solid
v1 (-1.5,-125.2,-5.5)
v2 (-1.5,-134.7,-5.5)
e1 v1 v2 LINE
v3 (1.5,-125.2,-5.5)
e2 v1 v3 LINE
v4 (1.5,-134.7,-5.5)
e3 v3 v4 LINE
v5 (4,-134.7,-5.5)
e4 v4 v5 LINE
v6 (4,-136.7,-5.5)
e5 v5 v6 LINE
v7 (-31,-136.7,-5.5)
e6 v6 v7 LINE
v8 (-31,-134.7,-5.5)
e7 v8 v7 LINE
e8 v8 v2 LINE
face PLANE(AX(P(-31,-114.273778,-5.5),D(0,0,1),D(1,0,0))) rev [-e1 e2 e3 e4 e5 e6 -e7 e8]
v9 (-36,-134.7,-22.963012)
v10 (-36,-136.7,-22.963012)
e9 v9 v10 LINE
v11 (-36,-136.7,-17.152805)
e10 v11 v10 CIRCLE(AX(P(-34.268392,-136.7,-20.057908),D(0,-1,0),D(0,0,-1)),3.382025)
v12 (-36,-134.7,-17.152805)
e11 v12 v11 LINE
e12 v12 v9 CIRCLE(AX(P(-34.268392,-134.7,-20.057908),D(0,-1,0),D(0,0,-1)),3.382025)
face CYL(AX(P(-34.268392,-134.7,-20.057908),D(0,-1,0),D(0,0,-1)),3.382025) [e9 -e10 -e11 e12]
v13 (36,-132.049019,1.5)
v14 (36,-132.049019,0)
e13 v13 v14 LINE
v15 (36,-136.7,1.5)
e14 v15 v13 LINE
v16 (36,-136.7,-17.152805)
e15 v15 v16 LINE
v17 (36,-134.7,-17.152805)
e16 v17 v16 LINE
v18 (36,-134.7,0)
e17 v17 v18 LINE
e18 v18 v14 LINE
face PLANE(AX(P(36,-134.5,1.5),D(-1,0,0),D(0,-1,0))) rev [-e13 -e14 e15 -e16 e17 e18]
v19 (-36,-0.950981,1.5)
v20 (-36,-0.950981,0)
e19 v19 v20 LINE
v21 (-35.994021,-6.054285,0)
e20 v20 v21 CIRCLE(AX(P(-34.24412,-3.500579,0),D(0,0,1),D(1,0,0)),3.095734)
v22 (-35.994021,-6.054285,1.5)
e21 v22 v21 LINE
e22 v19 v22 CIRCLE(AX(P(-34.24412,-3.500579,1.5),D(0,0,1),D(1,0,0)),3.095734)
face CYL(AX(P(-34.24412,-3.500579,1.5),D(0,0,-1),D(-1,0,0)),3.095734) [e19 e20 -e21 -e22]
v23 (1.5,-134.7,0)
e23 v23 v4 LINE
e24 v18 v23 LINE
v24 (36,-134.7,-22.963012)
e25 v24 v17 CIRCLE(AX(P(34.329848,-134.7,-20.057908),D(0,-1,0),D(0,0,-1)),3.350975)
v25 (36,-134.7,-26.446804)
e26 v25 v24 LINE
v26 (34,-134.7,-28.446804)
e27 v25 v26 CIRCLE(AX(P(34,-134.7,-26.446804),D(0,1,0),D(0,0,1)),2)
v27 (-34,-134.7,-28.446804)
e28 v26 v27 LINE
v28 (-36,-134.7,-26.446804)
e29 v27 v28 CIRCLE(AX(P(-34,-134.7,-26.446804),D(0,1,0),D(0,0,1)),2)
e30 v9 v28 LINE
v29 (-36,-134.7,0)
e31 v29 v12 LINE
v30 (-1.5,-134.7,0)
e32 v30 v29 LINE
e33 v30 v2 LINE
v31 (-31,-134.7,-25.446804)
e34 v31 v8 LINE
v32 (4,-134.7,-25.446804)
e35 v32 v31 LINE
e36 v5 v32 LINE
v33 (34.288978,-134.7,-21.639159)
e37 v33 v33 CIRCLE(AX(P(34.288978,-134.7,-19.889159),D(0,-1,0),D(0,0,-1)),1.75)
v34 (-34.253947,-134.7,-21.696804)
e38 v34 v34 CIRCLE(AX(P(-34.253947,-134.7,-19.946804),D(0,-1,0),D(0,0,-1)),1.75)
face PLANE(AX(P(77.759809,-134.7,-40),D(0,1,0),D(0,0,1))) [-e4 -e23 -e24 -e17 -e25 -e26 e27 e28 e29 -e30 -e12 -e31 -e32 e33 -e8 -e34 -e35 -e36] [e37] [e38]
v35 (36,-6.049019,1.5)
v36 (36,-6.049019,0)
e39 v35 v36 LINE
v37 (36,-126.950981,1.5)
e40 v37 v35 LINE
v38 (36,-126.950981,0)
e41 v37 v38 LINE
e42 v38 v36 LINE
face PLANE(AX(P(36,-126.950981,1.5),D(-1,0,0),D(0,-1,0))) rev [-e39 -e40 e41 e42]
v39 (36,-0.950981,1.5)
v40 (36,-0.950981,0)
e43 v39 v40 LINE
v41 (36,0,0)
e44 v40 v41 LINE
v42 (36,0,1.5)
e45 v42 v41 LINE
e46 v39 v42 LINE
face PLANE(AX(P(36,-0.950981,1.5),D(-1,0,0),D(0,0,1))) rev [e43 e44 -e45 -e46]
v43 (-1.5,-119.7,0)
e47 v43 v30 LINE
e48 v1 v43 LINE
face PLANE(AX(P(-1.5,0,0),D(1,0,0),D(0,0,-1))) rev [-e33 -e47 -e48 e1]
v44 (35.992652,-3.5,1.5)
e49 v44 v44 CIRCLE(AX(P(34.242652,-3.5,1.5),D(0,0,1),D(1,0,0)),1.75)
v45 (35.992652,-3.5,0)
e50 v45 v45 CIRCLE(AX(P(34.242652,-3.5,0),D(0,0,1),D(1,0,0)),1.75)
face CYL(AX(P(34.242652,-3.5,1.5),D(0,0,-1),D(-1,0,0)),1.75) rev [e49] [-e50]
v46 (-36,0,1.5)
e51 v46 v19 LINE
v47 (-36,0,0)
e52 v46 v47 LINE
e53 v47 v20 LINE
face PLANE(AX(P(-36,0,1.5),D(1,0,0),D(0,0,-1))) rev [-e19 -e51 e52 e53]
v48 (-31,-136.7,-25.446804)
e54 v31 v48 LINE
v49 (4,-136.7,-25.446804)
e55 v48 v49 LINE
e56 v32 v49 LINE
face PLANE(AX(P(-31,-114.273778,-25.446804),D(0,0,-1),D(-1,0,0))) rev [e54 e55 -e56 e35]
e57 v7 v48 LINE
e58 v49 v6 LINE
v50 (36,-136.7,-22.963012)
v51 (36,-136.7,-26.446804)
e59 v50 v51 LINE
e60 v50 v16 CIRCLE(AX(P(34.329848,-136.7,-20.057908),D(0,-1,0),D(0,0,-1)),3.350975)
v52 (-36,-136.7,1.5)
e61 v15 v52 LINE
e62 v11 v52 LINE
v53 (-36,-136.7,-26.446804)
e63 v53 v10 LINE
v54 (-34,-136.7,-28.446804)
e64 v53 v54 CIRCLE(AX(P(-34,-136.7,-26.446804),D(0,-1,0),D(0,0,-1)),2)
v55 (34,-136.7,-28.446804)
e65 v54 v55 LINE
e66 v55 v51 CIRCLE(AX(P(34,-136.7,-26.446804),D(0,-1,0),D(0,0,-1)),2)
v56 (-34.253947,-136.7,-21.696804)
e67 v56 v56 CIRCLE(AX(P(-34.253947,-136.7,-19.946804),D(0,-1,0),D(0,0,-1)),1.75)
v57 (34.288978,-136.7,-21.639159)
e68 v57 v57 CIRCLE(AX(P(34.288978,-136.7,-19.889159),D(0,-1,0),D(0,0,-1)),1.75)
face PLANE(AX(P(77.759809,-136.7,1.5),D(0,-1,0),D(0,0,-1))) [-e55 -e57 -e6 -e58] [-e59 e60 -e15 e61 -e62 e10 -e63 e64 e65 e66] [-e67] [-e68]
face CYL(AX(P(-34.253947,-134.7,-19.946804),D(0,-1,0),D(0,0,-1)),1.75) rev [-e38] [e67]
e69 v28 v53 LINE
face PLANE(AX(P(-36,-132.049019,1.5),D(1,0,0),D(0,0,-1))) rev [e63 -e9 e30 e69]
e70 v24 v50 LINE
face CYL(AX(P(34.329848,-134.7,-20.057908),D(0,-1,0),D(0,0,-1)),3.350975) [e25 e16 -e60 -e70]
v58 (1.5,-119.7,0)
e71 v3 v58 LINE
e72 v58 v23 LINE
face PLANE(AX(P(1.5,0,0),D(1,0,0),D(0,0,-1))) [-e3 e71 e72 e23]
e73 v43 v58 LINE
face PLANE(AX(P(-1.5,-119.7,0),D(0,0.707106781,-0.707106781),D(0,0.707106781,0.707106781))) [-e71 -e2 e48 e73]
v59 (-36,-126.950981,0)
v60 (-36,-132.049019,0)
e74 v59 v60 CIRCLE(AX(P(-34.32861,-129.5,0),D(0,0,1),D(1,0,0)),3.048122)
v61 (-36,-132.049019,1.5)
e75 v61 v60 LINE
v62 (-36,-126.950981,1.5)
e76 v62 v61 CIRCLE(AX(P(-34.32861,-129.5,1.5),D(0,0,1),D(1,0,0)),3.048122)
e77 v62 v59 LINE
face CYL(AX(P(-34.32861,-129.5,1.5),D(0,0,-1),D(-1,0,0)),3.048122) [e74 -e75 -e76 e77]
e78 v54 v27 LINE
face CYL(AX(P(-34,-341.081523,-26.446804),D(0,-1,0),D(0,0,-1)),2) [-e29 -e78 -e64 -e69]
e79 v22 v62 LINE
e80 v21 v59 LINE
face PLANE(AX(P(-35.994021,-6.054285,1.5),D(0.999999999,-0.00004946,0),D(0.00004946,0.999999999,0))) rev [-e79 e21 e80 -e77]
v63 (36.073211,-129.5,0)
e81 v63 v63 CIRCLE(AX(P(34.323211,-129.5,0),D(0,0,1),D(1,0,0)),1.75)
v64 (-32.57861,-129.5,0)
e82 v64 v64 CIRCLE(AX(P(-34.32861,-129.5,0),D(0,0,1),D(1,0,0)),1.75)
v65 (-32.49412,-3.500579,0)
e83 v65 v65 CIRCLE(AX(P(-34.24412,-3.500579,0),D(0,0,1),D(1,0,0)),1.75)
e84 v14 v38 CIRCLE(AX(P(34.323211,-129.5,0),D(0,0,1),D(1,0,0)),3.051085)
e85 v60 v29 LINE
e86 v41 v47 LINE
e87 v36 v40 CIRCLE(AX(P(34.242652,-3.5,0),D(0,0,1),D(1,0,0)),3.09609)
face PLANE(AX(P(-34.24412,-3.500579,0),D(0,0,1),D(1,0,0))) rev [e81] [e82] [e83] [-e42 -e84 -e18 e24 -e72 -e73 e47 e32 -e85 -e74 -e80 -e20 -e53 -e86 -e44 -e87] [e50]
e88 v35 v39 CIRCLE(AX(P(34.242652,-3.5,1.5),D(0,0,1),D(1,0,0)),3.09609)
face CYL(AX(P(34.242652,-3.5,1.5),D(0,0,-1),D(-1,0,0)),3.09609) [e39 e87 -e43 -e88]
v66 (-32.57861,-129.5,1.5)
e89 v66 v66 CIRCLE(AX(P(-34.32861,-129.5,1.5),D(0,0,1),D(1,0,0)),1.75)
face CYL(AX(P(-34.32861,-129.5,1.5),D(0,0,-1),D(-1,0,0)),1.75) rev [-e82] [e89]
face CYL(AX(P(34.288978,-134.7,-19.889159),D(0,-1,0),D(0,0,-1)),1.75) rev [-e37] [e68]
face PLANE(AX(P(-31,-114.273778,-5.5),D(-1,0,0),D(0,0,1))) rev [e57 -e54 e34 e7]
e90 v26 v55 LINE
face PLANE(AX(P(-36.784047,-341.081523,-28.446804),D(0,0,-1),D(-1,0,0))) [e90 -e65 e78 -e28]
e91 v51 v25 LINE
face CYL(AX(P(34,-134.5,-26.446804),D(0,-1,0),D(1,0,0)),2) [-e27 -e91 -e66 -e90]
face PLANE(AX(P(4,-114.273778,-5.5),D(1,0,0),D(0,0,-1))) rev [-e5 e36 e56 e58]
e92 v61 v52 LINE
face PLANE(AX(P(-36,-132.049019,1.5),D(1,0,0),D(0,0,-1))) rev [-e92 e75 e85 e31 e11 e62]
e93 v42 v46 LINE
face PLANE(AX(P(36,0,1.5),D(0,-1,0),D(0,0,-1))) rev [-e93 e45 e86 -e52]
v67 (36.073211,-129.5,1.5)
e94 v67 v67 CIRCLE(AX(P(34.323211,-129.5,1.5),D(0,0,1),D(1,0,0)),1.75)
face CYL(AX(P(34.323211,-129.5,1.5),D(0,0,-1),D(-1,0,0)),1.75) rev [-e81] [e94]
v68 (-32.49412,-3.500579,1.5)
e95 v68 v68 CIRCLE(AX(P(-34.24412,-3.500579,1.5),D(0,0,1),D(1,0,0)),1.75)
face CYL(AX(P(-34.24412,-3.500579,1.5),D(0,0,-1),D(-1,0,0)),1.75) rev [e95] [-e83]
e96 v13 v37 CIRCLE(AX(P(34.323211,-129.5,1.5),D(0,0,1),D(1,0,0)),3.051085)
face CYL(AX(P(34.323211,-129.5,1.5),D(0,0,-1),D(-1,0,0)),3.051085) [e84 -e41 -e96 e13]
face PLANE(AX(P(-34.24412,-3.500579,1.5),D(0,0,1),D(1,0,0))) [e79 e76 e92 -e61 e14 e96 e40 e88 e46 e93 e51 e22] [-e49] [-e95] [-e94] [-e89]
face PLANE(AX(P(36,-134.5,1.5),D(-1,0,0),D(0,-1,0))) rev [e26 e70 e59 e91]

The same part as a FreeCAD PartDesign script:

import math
import FreeCAD as App
import Part
import Sketcher

V = App.Vector
Q = App.Units.Quantity


def edges_at(feature, points):
    """Names of the edges that pass closest to the given points."""
    edges = feature.Shape.Edges
    near = lambda p: min(range(len(edges)), key=lambda i: edges[i].distToShape(Part.Vertex(*p))[0])
    return sorted({f"Edge{near(p) + 1}" for p in points})

doc = App.newDocument("Part")
body = doc.addObject("PartDesign::Body", "Body")

# Sketch on XY plane
sketch1 = body.newObject("Sketcher::SketchObject", "Sketch")
sketch1.AttachmentSupport = (doc.getObject("XY_Plane"), [""])
sketch1.MapMode = "FlatFace"
sketch1.addGeometry([
    Part.LineSegment(V(36, -134.5, 0), V(36, -132, 0)),  # 0
    Part.ArcOfCircle(Part.Circle(V(34.3, -129.5, 0), V(0, 0, 1), 3.1), math.radians(-57), math.radians(57)),  # 1
    Part.LineSegment(V(36, -127, 0), V(36, -6, 0)),  # 2
    Part.ArcOfCircle(Part.Circle(V(34.2, -3.5, 0), V(0, 0, 1), 3.1), math.radians(-55), math.radians(55)),  # 3
    Part.LineSegment(V(36, -1, 0), V(36, 0, 0)),  # 4
    Part.LineSegment(V(36, 0, 0), V(-36, 0, 0)),  # 5
    Part.LineSegment(V(-36, 0, 0), V(-36, -1, 0)),  # 6
    Part.ArcOfCircle(Part.Circle(V(-34.2, -3.5, 0), V(0, 0, 1), 3.1), math.radians(125), math.radians(236)),  # 7
    Part.LineSegment(V(-36, -6.1, 0), V(-36, -127, 0)),  # 8
    Part.ArcOfCircle(Part.Circle(V(-34.3, -129.5, 0), V(0, 0, 1), 3), math.radians(123), math.radians(237)),  # 9
    Part.LineSegment(V(-36, -132, 0), V(-36, -134.5, 0)),  # 10
    Part.LineSegment(V(-36, -134.5, 0), V(36, -134.5, 0)),  # 11
    Part.Circle(V(-34.3, -129.5, 0), V(0, 0, 1), 1.8),  # 12
    Part.Circle(V(34.3, -129.5, 0), V(0, 0, 1), 1.8),  # 13
    Part.Circle(V(-34.2, -3.5, 0), V(0, 0, 1), 1.8),  # 14
    Part.Circle(V(34.2, -3.5, 0), V(0, 0, 1), 1.8),  # 15
], False)
sketch1.addConstraint([
    Sketcher.Constraint("Coincident", 0, 2, 1, 1),
    Sketcher.Constraint("Coincident", 1, 2, 2, 1),
    Sketcher.Constraint("Coincident", 2, 2, 3, 1),
    Sketcher.Constraint("Coincident", 3, 2, 4, 1),
    Sketcher.Constraint("Coincident", 4, 2, 5, 1),
    Sketcher.Constraint("Coincident", 5, 2, 6, 1),
    Sketcher.Constraint("Coincident", 6, 2, 7, 1),
    Sketcher.Constraint("Coincident", 7, 2, 8, 1),
    Sketcher.Constraint("Coincident", 8, 2, 9, 1),
    Sketcher.Constraint("Coincident", 9, 2, 10, 1),
    Sketcher.Constraint("Coincident", 10, 2, 11, 1),
    Sketcher.Constraint("Coincident", 11, 2, 0, 1),
    Sketcher.Constraint("Vertical", 0),
    Sketcher.Constraint("Vertical", 2),
    Sketcher.Constraint("Vertical", 4),
    Sketcher.Constraint("Horizontal", 5),
    Sketcher.Constraint("Vertical", 6),
    Sketcher.Constraint("Vertical", 10),
    Sketcher.Constraint("Horizontal", 11),
    Sketcher.Constraint("Coincident", 12, 3, 9, 3),
    Sketcher.Constraint("Coincident", 13, 3, 1, 3),
    Sketcher.Constraint("Coincident", 14, 3, 7, 3),
    Sketcher.Constraint("Coincident", 15, 3, 3, 3),
    Sketcher.Constraint("Equal", 12, 13),
    Sketcher.Constraint("Equal", 13, 14),
    Sketcher.Constraint("Equal", 14, 15),
    Sketcher.Constraint("Symmetric", 4, 2, 5, 2, -1, 1),
    Sketcher.Constraint("Symmetric", 1, 2, 8, 2, -2),
    Sketcher.Constraint("Symmetric", 0, 2, 9, 2, -2),
    Sketcher.Constraint("Horizontal", 3, 2, 6, 2),
    Sketcher.Constraint("Vertical", 0, 2, 1, 2),
    Sketcher.Constraint("Vertical", 2, 2, 3, 2),
    Sketcher.Constraint("Diameter", 12, Q("3.5 mm")),
    Sketcher.Constraint("DistanceX", 5, 2, 5, 1, Q("72 mm")),
    Sketcher.Constraint("DistanceY", 1, 3, 3, 3, Q("126 mm")),
    Sketcher.Constraint("DistanceY", 10, 2, 9, 3, Q("5 mm")),
    Sketcher.Constraint("DistanceY", 1, 3, -1, 1, Q("129.5 mm")),
    Sketcher.Constraint("Radius", 3, Q("3.09609 mm")),
    Sketcher.Constraint("Radius", 9, Q("3.048122 mm")),
    Sketcher.Constraint("Radius", 1, Q("3.051085 mm")),
    Sketcher.Constraint("Radius", 7, Q("3.095734 mm")),
    Sketcher.Constraint("DistanceY", 0, 1, 0, 2, Q("2.450981 mm")),
    Sketcher.Constraint("DistanceY", 2, 1, 2, 2, Q("120.901961 mm")),
    Sketcher.Constraint("DistanceY", 7, 3, 3, 2, Q("2.549598 mm")),
    Sketcher.Constraint("DistanceX", 7, 2, 7, 3, Q("1.7499 mm")),
])
pad1 = body.newObject("PartDesign::Pad", "Pad")
pad1.Profile = sketch1
pad1.Length = 1.5

# Sketch on YZ plane
sketch2 = body.newObject("Sketcher::SketchObject", "Sketch001")
sketch2.AttachmentSupport = (doc.getObject("YZ_Plane"), [""])
sketch2.MapMode = "FlatFace"
sketch2.AttachmentOffset = App.Placement(V(0, 0, -36), App.Rotation())
sketch2.addGeometry([
    Part.LineSegment(V(-136.7, 1.5, 0), V(-132, 1.5, 0)),  # 0
    Part.LineSegment(V(-132, 1.5, 0), V(-132, 0, 0)),  # 1
    Part.LineSegment(V(-132, 0, 0), V(-134.7, 0, 0)),  # 2
    Part.LineSegment(V(-134.7, 0, 0), V(-134.7, -40, 0)),  # 3
    Part.LineSegment(V(-134.7, -40, 0), V(-136.7, -40, 0)),  # 4
    Part.LineSegment(V(-136.7, -40, 0), V(-136.7, 1.5, 0)),  # 5
], False)
sketch2.addConstraint([
    Sketcher.Constraint("Coincident", 0, 2, 1, 1),
    Sketcher.Constraint("Coincident", 1, 2, 2, 1),
    Sketcher.Constraint("Coincident", 2, 2, 3, 1),
    Sketcher.Constraint("Coincident", 3, 2, 4, 1),
    Sketcher.Constraint("Coincident", 4, 2, 5, 1),
    Sketcher.Constraint("Coincident", 5, 2, 0, 1),
    Sketcher.Constraint("Horizontal", 0),
    Sketcher.Constraint("Vertical", 1),
    Sketcher.Constraint("Horizontal", 2),
    Sketcher.Constraint("Vertical", 3),
    Sketcher.Constraint("Horizontal", 4),
    Sketcher.Constraint("Vertical", 5),
    Sketcher.Constraint("PointOnObject", 1, 2, -1),
    Sketcher.Constraint("DistanceX", 4, 2, 4, 1, Q("2 mm")),
    Sketcher.Constraint("DistanceY", 3, 2, 3, 1, Q("40 mm")),
    Sketcher.Constraint("DistanceY", 1, 2, 1, 1, Q("1.5 mm")),
    Sketcher.Constraint("DistanceX", 2, 2, -1, 1, Q("134.7 mm")),
    Sketcher.Constraint("DistanceX", 0, 1, 0, 2, Q("4.650981 mm")),
])
pad2 = body.newObject("PartDesign::Pad", "Pad001")
pad2.Profile = sketch2
pad2.Length = 72

# Sketch on YZ plane
sketch3 = body.newObject("Sketcher::SketchObject", "Sketch002")
sketch3.AttachmentSupport = (doc.getObject("YZ_Plane"), [""])
sketch3.MapMode = "FlatFace"
sketch3.addGeometry([
    Part.LineSegment(V(-135, -15, 0), V(-120, 0, 0)),
    Part.LineSegment(V(-120, 0, 0), V(-135, 0, 0)),
    Part.LineSegment(V(-135, 0, 0), V(-135, -15, 0)),
], False)
sketch3.addConstraint([
    Sketcher.Constraint("Coincident", 0, 2, 1, 1),
    Sketcher.Constraint("Coincident", 1, 2, 2, 1),
    Sketcher.Constraint("Coincident", 2, 2, 0, 1),
    Sketcher.Constraint("Horizontal", 1),
    Sketcher.Constraint("Vertical", 2),
    Sketcher.Constraint("PointOnObject", 0, 2, -1),
    Sketcher.Constraint("Equal", 1, 2),
    Sketcher.Constraint("DistanceX", 1, 2, 1, 1, Q("15 mm")),
    Sketcher.Constraint("DistanceX", 0, 2, -1, 1, Q("119.7 mm")),
])
pad3 = body.newObject("PartDesign::Pad", "Pad002")
pad3.Profile = sketch3
pad3.Type = "TwoLengths"
pad3.Length = 1.5
pad3.Length2 = 1.5

# Sketch on XZ plane
sketch4 = body.newObject("Sketcher::SketchObject", "Sketch003")
sketch4.AttachmentSupport = (doc.getObject("XZ_Plane"), [""])
sketch4.MapMode = "FlatFace"
sketch4.AttachmentOffset = App.Placement(V(0, 0, 136.7), App.Rotation())
sketch4.addGeometry([
    Part.LineSegment(V(-36, -23, 0), V(-36, -17.2, 0)),
    Part.ArcOfCircle(Part.Circle(V(-34.3, -20.1, 0), V(0, 0, 1), 3.4), math.radians(121), math.radians(239)),
    Part.LineSegment(V(36, -17.2, 0), V(36, -23, 0)),
    Part.ArcOfCircle(Part.Circle(V(34.3, -20.1, 0), V(0, 0, 1), 3.4), math.radians(-60), math.radians(60)),
], False)
sketch4.addConstraint([
    Sketcher.Constraint("Coincident", 0, 1, 1, 2),
    Sketcher.Constraint("Coincident", 1, 1, 0, 2),
    Sketcher.Constraint("Coincident", 2, 1, 3, 2),
    Sketcher.Constraint("Coincident", 3, 1, 2, 2),
    Sketcher.Constraint("Vertical", 0),
    Sketcher.Constraint("Vertical", 2),
    Sketcher.Constraint("Symmetric", 1, 1, 2, 1, -2),
    Sketcher.Constraint("Horizontal", 1, 3, 3, 3),
    Sketcher.Constraint("DistanceX", 0, 1, -1, 1, Q("36 mm")),
    Sketcher.Constraint("Radius", 1, Q("3.382025 mm")),
    Sketcher.Constraint("Radius", 3, Q("3.350975 mm")),
    Sketcher.Constraint("DistanceY", 0, 1, 0, 2, Q("5.810206 mm")),
    Sketcher.Constraint("DistanceY", 1, 3, -1, 1, Q("20.057908 mm")),
])
pad4 = body.newObject("PartDesign::Pad", "Pad003")
pad4.Profile = sketch4
pad4.Length = 2
pad4.Reversed = True

# Sketch on XZ plane
sketch5 = body.newObject("Sketcher::SketchObject", "Sketch004")
sketch5.AttachmentSupport = (doc.getObject("XZ_Plane"), [""])
sketch5.MapMode = "FlatFace"
sketch5.AttachmentOffset = App.Placement(V(0, 0, 136.7), App.Rotation())
sketch5.addGeometry([
    Part.Circle(V(-34.3, -19.9, 0), V(0, 0, 1), 1.8),
    Part.Circle(V(34.3, -19.9, 0), V(0, 0, 1), 1.8),
], False)
sketch5.addConstraint([
    Sketcher.Constraint("Equal", 0, 1),
    Sketcher.Constraint("Diameter", 0, Q("3.5 mm")),
    Sketcher.Constraint("DistanceY", 1, 3, -1, 1, Q("19.889159 mm")),
    Sketcher.Constraint("DistanceX", 0, 3, -1, 1, Q("34.253947 mm")),
    Sketcher.Constraint("DistanceY", 0, 3, -1, 1, Q("19.946804 mm")),
    Sketcher.Constraint("DistanceX", -1, 1, 1, 3, Q("34.288978 mm")),
])
pocket1 = body.newObject("PartDesign::Pocket", "Pocket")
pocket1.Profile = sketch5
pocket1.Length = 2

# Sketch on XZ plane
sketch6 = body.newObject("Sketcher::SketchObject", "Sketch005")
sketch6.AttachmentSupport = (doc.getObject("XZ_Plane"), [""])
sketch6.MapMode = "FlatFace"
sketch6.AttachmentOffset = App.Placement(V(0, 0, 136.7), App.Rotation())
sketch6.addGeometry([
    Part.LineSegment(V(-36, -28, 0), V(-36, -40, 0)),
    Part.LineSegment(V(-36, -40, 0), V(36, -40, 0)),
    Part.LineSegment(V(36, -40, 0), V(36, -28, 0)),
    Part.LineSegment(V(36, -28, 0), V(-36, -28, 0)),
], False)
sketch6.addConstraint([
    Sketcher.Constraint("Coincident", 0, 2, 1, 1),
    Sketcher.Constraint("Coincident", 1, 2, 2, 1),
    Sketcher.Constraint("Coincident", 2, 2, 3, 1),
    Sketcher.Constraint("Coincident", 3, 2, 0, 1),
    Sketcher.Constraint("Vertical", 0),
    Sketcher.Constraint("Horizontal", 1),
    Sketcher.Constraint("Vertical", 2),
    Sketcher.Constraint("Horizontal", 3),
    Sketcher.Constraint("DistanceX", 1, 1, 1, 2, Q("72 mm")),
    Sketcher.Constraint("DistanceX", 0, 2, -1, 1, Q("36 mm")),
    Sketcher.Constraint("DistanceY", 0, 2, -1, 1, Q("40 mm")),
    Sketcher.Constraint("DistanceY", 0, 2, 0, 1, Q("11.553196 mm")),
])
pocket2 = body.newObject("PartDesign::Pocket", "Pocket001")
pocket2.Profile = sketch6
pocket2.Type = "ThroughAll"
pocket2.Midplane = True
doc.recompute()

fillet = body.newObject("PartDesign::Fillet", "Fillet")
fillet.Base = (pocket2, edges_at(pocket2, [(36, -135.7, -28.447), (-36, -135.7, -28.447)]))
fillet.Radius = 2

# Sketch on XZ plane
sketch7 = body.newObject("Sketcher::SketchObject", "Sketch006")
sketch7.AttachmentSupport = (doc.getObject("XZ_Plane"), [""])
sketch7.MapMode = "FlatFace"
sketch7.AttachmentOffset = App.Placement(V(0, 0, 136.7), App.Rotation())
sketch7.addGeometry([
    Part.LineSegment(V(-31, -6, 0), V(-31, -25, 0)),
    Part.LineSegment(V(-31, -25, 0), V(4, -25, 0)),
    Part.LineSegment(V(4, -25, 0), V(4, -6, 0)),
    Part.LineSegment(V(4, -6, 0), V(-31, -6, 0)),
], False)
sketch7.addConstraint([
    Sketcher.Constraint("Coincident", 0, 2, 1, 1),
    Sketcher.Constraint("Coincident", 1, 2, 2, 1),
    Sketcher.Constraint("Coincident", 2, 2, 3, 1),
    Sketcher.Constraint("Coincident", 3, 2, 0, 1),
    Sketcher.Constraint("Vertical", 0),
    Sketcher.Constraint("Horizontal", 1),
    Sketcher.Constraint("Vertical", 2),
    Sketcher.Constraint("Horizontal", 3),
    Sketcher.Constraint("DistanceX", 1, 1, 1, 2, Q("35 mm")),
    Sketcher.Constraint("DistanceX", 0, 2, -1, 1, Q("31 mm")),
    Sketcher.Constraint("DistanceY", 2, 2, -1, 1, Q("5.5 mm")),
    Sketcher.Constraint("DistanceY", 0, 2, 0, 1, Q("19.946804 mm")),
])
pocket3 = body.newObject("PartDesign::Pocket", "Pocket002")
pocket3.Profile = sketch7
pocket3.Length = 22.426222

doc.recompute()
